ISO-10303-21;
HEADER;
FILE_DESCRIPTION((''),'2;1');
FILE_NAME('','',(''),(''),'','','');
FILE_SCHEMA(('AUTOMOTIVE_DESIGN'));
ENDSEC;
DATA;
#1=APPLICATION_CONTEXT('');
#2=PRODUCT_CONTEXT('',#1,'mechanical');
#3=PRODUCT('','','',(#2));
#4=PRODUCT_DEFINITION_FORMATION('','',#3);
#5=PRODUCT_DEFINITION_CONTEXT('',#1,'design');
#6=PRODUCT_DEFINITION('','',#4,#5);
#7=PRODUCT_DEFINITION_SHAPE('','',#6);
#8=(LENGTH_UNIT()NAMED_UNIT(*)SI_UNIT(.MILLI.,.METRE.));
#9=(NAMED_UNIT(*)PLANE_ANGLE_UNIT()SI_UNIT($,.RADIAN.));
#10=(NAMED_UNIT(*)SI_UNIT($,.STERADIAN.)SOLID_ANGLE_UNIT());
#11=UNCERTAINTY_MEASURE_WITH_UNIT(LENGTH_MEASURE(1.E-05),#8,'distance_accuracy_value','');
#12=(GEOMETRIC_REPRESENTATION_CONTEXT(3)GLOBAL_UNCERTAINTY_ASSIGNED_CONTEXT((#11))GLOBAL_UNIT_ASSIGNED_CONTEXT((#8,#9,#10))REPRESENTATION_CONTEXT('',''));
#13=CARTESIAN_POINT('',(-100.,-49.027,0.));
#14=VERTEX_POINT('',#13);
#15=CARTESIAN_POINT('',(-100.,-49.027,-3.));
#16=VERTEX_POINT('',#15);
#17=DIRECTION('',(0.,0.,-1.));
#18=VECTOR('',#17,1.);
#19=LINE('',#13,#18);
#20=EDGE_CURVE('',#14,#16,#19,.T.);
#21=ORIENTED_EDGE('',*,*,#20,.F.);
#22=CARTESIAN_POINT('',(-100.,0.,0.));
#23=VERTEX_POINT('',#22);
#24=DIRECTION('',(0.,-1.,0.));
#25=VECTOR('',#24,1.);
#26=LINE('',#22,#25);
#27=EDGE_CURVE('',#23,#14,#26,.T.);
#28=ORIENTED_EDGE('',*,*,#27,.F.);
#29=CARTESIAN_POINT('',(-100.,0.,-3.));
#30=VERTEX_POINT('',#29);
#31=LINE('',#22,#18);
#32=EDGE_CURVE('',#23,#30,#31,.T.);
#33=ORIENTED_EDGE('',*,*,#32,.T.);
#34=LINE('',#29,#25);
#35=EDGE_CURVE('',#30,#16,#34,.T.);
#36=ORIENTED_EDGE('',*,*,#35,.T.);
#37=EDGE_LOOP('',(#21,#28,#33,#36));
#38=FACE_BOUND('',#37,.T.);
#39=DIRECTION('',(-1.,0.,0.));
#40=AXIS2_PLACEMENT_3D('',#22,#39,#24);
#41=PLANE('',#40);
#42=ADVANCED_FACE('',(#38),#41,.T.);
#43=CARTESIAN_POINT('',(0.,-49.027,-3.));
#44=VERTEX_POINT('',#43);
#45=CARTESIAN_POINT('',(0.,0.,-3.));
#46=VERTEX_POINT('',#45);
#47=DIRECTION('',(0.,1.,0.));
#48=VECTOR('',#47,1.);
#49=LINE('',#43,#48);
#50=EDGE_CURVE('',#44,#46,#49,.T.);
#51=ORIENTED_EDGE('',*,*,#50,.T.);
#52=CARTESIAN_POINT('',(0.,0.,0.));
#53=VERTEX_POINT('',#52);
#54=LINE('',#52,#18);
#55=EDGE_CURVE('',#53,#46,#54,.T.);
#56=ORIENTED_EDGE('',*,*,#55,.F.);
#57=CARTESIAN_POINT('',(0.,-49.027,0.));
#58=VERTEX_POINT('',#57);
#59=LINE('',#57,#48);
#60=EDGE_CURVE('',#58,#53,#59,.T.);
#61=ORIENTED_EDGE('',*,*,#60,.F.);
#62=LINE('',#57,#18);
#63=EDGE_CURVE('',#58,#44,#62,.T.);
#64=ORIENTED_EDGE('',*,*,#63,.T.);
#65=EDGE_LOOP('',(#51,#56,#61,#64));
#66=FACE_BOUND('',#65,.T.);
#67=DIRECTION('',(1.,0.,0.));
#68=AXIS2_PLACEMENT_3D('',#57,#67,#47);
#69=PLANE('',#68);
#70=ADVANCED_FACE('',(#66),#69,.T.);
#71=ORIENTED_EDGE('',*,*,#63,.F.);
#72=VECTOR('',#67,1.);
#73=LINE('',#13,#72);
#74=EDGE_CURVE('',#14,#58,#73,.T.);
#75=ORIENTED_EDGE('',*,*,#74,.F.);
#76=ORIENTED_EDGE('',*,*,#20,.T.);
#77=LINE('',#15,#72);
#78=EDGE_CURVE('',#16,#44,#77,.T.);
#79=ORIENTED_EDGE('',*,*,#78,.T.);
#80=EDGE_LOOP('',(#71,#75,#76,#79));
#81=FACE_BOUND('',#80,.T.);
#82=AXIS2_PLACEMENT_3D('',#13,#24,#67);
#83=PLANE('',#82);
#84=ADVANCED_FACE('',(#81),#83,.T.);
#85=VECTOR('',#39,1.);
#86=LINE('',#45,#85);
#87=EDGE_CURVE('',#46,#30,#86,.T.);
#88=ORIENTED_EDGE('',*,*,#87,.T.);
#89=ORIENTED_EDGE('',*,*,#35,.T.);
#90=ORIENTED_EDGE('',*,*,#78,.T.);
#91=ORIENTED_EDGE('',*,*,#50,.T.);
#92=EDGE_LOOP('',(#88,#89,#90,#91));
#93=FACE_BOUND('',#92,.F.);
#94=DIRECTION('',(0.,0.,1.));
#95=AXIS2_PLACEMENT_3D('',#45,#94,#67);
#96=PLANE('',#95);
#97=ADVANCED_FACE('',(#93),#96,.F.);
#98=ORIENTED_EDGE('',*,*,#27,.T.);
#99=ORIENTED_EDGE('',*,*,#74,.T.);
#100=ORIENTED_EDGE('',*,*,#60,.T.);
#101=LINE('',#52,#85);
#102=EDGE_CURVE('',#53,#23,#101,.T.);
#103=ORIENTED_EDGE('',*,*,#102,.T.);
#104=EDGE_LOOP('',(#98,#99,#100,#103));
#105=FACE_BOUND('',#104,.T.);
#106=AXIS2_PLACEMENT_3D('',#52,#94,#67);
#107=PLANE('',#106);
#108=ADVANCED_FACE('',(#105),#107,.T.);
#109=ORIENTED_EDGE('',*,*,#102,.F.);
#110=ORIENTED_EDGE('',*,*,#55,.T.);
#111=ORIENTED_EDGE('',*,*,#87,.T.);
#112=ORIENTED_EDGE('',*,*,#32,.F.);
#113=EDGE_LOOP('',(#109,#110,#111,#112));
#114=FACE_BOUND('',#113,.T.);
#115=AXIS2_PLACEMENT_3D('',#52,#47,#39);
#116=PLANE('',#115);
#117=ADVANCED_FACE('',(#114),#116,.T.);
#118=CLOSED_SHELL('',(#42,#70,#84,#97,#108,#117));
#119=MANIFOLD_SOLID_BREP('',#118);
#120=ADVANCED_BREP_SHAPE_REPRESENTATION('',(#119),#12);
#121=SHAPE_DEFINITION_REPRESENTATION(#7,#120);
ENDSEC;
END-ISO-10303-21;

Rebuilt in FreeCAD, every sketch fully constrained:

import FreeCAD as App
import Part
import Sketcher
from FreeCAD import Vector
Q = App.Units.Quantity


def add_polygon(sketch, points):
    """Adds a closed chain of lines whose ends are joined by coincident constraints."""
    first, n = sketch.GeometryCount, len(points)
    for a, b in zip(points, points[1:] + points[:1]):
        sketch.addGeometry(Part.LineSegment(App.Vector(*a, 0), App.Vector(*b, 0)), False)
    for i in range(n):
        sketch.addConstraint(Sketcher.Constraint("Coincident", first + i, 2, first + (i + 1) % n, 1))

doc = App.newDocument("Part")
body = doc.addObject("PartDesign::Body", "Body")

# Sketch on XY plane
sketch1 = doc.addObject("Sketcher::SketchObject", "Sketch")
body.addObject(sketch1)
sketch1.AttachmentSupport = (doc.XY_Plane, [""])
sketch1.MapMode = "FlatFace"
add_polygon(sketch1, [(0, -49), (0, 0), (-100, 0), (-100, -49)])  # lines 0-3
sketch1.addConstraint(Sketcher.Constraint("Vertical", 0))
sketch1.addConstraint(Sketcher.Constraint("Horizontal", 1))
sketch1.addConstraint(Sketcher.Constraint("Vertical", 2))
sketch1.addConstraint(Sketcher.Constraint("Horizontal", 3))
sketch1.addConstraint(Sketcher.Constraint("Coincident", 0, 2, -1, 1))
sketch1.addConstraint(Sketcher.Constraint("DistanceX", 1, 2, 1, 1, Q("3.937 in")))
sketch1.addConstraint(Sketcher.Constraint("DistanceY", 0, 1, 0, 2, Q("1.9302 in")))
pad1 = doc.addObject("PartDesign::Pad", "Pad")
body.addObject(pad1)
pad1.Profile = sketch1
pad1.Length = Q("0.1181102 in")
pad1.Reversed = True

doc.recompute()
